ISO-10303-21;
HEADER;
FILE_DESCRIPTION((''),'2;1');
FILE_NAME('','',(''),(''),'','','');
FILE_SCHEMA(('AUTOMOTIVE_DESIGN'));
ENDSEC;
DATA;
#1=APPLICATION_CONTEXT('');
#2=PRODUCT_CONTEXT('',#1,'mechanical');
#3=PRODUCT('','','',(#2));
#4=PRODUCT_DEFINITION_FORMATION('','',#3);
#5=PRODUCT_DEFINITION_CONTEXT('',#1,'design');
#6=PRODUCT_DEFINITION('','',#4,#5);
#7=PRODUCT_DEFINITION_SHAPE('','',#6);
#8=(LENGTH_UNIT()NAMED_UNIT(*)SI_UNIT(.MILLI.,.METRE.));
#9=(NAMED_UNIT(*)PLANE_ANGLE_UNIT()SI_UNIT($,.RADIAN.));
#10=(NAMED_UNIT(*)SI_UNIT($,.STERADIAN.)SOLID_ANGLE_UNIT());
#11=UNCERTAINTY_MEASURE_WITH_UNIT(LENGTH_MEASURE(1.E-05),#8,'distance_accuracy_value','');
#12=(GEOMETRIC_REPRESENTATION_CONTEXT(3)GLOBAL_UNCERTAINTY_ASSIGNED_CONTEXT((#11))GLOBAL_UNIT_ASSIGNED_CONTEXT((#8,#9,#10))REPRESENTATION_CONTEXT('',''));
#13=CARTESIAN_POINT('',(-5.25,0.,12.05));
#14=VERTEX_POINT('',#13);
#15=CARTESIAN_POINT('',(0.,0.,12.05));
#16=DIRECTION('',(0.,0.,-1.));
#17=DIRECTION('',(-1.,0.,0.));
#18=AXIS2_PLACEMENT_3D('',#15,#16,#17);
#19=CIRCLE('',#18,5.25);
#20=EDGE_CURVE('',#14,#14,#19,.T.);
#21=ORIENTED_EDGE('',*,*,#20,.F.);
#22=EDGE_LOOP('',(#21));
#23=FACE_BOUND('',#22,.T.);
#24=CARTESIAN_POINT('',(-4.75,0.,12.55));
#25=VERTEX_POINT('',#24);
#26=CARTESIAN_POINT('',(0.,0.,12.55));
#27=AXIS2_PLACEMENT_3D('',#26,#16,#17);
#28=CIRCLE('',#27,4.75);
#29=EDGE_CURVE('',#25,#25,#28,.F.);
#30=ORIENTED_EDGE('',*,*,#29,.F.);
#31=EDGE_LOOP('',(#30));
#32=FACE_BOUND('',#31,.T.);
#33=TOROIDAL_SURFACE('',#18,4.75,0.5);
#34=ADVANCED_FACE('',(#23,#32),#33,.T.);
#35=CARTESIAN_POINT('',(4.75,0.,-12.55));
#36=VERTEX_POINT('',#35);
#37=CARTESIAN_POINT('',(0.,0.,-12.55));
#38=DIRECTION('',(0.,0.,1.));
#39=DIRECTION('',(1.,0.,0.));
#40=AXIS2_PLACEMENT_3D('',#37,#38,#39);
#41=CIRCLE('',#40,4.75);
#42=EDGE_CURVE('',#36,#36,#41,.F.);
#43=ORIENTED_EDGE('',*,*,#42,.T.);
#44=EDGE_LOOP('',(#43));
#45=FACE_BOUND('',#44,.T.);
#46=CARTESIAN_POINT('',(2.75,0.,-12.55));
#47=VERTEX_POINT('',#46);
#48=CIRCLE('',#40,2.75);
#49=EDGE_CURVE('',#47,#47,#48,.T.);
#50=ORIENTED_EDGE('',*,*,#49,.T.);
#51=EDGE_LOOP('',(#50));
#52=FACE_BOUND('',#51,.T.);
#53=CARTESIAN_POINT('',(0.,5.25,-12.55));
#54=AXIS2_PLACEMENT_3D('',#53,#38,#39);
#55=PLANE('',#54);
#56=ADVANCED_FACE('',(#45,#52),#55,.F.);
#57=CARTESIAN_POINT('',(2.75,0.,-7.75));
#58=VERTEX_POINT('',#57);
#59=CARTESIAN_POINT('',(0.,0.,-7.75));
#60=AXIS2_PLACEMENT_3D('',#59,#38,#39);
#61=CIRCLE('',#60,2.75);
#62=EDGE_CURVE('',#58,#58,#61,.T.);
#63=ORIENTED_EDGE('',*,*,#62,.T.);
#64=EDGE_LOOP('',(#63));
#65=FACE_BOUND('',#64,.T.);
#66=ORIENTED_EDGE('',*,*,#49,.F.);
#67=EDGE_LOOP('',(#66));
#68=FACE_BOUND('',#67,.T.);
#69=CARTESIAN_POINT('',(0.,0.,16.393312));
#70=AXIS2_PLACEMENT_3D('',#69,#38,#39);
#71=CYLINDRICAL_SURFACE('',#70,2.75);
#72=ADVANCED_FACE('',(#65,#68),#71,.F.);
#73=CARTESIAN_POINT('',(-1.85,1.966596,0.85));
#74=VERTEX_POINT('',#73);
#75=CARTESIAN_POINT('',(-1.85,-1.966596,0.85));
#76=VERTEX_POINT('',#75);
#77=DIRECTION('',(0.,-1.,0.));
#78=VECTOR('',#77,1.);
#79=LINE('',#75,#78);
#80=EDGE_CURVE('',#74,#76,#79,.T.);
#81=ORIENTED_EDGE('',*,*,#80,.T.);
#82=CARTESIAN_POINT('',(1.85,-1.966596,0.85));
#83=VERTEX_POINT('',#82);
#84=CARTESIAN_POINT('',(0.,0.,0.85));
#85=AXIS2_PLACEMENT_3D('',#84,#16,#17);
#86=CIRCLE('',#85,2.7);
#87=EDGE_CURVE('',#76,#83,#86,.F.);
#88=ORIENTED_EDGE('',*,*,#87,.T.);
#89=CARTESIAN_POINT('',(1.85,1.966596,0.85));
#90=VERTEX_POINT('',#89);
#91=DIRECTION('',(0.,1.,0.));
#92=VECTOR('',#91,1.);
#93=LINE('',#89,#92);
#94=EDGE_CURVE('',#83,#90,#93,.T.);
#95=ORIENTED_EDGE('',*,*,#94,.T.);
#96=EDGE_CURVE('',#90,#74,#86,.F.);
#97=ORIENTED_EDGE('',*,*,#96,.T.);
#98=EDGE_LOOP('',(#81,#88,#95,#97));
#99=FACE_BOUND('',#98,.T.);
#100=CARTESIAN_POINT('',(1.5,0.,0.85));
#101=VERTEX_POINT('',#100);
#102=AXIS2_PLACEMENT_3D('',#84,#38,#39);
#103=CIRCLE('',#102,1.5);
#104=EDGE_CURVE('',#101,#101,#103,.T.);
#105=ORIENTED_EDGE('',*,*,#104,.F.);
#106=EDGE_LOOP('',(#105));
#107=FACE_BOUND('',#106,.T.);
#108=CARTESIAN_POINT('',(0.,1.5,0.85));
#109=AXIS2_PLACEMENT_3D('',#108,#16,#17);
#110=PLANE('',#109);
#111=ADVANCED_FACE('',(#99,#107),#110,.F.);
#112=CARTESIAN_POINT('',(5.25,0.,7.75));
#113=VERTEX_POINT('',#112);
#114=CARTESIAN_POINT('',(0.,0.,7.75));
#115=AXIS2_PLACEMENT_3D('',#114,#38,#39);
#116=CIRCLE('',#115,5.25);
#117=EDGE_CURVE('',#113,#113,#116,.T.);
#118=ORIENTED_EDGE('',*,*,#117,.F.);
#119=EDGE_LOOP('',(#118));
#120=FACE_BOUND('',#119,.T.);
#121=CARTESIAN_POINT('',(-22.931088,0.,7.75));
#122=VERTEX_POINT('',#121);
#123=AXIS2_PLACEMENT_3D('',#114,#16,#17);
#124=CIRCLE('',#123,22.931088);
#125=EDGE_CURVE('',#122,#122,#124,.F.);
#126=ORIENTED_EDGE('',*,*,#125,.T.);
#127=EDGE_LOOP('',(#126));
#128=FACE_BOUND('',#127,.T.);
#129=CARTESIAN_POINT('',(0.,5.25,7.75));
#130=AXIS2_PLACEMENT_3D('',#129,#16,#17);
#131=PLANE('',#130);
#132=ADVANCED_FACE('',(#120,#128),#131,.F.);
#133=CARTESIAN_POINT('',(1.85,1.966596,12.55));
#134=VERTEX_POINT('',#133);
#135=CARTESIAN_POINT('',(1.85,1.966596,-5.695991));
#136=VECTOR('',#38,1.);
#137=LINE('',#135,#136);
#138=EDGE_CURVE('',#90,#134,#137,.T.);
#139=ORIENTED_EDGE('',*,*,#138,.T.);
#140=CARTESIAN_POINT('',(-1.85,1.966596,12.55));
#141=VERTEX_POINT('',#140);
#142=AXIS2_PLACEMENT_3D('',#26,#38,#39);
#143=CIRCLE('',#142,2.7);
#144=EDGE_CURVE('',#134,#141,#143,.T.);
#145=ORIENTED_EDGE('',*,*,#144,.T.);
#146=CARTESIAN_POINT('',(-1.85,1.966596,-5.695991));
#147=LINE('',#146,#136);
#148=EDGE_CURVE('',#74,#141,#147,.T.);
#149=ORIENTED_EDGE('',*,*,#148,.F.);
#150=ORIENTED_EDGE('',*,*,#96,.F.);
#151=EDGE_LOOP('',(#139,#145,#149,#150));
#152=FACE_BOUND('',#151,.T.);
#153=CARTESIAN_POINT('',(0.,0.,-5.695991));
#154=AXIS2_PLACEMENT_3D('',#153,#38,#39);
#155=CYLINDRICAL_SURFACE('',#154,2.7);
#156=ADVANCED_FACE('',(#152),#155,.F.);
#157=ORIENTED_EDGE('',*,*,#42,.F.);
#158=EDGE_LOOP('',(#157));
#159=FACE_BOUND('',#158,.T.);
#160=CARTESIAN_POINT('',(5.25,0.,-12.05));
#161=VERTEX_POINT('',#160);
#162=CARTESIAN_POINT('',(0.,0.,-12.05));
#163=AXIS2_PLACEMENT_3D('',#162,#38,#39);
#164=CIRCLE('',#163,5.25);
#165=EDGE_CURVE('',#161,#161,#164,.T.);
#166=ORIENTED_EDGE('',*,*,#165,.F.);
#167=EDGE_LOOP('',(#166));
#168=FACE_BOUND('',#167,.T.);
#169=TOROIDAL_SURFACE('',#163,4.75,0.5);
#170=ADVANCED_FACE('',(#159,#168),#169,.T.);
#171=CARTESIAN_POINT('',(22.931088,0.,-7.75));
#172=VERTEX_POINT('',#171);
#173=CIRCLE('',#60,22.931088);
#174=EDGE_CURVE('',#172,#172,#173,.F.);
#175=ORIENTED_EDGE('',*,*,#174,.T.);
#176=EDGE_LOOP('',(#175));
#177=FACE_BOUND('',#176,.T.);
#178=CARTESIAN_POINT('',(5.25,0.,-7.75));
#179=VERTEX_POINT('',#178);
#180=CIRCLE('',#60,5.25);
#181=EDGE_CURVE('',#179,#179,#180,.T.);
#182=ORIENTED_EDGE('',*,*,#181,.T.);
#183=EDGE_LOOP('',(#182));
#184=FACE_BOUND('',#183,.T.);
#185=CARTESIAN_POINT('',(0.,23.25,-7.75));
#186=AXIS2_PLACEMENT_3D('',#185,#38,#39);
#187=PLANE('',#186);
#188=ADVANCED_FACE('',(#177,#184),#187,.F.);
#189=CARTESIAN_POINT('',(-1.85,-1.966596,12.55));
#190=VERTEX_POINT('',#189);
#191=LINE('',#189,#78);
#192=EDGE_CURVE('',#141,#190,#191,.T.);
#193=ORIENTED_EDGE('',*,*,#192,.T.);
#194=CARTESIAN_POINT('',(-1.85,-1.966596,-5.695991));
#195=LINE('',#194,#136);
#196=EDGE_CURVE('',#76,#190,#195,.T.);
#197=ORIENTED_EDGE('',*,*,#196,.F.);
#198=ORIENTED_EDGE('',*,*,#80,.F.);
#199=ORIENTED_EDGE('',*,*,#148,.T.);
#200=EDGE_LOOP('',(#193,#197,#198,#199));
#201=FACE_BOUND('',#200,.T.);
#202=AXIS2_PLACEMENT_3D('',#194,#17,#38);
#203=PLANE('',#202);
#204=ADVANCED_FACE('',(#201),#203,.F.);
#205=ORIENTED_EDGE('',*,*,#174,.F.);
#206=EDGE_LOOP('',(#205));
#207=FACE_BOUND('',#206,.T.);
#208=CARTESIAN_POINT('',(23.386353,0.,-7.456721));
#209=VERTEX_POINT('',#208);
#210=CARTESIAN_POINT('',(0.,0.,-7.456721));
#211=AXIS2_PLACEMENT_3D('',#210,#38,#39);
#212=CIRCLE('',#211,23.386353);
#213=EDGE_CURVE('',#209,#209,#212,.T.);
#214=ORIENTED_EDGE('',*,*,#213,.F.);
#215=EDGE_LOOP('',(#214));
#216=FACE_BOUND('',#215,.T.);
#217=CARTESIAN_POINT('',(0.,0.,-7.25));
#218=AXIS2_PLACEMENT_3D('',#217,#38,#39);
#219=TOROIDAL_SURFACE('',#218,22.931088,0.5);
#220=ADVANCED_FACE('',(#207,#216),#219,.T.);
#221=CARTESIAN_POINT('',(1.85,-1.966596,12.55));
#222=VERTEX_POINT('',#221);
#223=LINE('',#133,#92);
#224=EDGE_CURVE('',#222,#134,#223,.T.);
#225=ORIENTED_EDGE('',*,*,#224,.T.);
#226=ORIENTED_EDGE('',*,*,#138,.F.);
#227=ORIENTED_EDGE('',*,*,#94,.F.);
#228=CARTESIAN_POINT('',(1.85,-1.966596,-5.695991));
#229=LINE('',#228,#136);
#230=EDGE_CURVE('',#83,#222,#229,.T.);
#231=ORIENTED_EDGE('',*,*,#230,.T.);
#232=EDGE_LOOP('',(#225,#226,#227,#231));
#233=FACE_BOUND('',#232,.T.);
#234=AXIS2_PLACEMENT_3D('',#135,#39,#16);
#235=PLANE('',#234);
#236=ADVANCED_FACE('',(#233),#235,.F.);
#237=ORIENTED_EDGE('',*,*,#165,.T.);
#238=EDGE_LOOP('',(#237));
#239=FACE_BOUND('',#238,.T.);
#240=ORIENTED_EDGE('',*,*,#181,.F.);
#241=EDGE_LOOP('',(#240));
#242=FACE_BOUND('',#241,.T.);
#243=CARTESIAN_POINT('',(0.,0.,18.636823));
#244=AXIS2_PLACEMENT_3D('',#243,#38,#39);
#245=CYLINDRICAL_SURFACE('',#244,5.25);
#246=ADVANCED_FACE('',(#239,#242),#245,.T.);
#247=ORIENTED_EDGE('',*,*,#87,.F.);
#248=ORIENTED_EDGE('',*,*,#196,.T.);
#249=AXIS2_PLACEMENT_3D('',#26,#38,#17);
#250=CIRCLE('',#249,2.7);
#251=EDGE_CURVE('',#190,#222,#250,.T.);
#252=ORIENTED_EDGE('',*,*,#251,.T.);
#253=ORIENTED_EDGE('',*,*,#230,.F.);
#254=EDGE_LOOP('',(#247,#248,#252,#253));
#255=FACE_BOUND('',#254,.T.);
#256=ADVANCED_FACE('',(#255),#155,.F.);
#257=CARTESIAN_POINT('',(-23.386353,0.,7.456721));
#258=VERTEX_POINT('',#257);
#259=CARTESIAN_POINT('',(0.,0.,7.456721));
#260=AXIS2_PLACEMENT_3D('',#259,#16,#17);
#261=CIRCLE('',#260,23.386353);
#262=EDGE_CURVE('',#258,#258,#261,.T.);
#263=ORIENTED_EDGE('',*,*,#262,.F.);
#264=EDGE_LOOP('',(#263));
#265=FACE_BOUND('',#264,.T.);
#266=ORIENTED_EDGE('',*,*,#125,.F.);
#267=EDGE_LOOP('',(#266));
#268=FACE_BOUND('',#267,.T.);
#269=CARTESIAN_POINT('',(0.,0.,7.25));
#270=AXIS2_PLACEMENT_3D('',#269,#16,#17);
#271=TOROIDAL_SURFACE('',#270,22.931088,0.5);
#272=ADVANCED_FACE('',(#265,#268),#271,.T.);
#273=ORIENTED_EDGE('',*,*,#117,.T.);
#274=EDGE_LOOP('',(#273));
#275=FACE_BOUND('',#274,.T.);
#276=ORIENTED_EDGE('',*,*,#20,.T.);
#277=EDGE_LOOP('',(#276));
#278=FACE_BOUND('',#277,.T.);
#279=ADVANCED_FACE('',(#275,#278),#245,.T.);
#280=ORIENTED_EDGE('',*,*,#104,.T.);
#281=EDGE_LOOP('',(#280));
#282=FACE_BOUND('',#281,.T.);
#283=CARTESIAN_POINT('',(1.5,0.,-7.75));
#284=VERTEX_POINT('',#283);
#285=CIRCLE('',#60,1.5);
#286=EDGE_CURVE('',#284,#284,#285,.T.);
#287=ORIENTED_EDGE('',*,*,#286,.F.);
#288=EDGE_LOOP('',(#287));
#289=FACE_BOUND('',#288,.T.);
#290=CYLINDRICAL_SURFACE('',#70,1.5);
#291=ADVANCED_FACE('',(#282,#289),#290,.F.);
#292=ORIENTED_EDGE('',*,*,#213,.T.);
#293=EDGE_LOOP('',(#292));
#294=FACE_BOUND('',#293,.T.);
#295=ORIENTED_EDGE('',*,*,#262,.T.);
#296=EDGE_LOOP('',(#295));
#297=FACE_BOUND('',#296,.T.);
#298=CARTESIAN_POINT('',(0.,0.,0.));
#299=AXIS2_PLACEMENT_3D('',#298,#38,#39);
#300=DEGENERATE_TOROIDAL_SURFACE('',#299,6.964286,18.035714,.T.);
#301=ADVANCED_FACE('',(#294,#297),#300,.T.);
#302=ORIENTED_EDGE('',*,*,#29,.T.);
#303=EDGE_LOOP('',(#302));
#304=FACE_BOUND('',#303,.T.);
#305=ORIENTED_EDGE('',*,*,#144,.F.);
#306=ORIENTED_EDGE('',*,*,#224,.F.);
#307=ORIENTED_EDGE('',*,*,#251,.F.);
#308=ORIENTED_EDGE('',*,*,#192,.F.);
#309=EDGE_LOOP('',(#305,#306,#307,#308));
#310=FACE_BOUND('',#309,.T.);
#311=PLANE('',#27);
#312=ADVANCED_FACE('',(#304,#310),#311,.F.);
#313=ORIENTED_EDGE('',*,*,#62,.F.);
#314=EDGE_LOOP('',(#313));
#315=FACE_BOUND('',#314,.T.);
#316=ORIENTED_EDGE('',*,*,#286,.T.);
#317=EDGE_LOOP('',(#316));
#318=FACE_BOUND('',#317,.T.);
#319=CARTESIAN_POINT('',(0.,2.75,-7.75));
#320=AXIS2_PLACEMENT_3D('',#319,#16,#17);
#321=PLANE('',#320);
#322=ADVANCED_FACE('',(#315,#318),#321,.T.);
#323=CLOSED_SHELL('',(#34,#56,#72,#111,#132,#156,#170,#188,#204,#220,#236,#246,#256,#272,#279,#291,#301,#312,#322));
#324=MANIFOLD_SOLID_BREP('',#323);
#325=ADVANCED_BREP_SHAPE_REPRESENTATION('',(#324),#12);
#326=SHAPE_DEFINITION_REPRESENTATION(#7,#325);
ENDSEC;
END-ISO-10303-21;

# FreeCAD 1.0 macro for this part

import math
import FreeCAD as App
import Part
import Sketcher

V = App.Vector


def edges_at(feature, points):
    """Names of the edges that pass closest to the given points."""
    edges = feature.Shape.Edges
    near = lambda p: min(range(len(edges)), key=lambda i: edges[i].distToShape(Part.Vertex(*p))[0])
    return sorted({f"Edge{near(p) + 1}" for p in points})

doc = App.newDocument("Part")
params = doc.addObject("Spreadsheet::Sheet", "Params")
for row, (alias, value) in enumerate([
    ("sketch1_width", "18 mm"),
    ("sketch1_height", "25.1 mm"),
    ("sketch1_height2", "4.8 mm"),
    ("sketch1_width2", "5.25 mm"),
    ("revolution_angle", "360 deg"),
    ("sketch2_width", "1.5 mm"),
    ("sketch2_height", "4.8 mm"),
    ("sketch2_height2", "8.6 mm"),
    ("sketch2_width2", "2.75 mm"),
    ("groove_angle", "360 deg"),
    ("sketch3_radius", "2.7 mm"),
    ("pocket1_length", "11.7 mm"),
    ("fillet_radius", "0.5 mm"),
], start=1):
    params.set(f"A{row}", alias)
    params.set(f"B{row}", "=" + value)
    params.setAlias(f"B{row}", alias)

body = doc.addObject("PartDesign::Body", "Body")

# Sketch on YZ plane
sketch1 = doc.addObject("Sketcher::SketchObject", "Sketch")
body.addObject(sketch1)
sketch1.AttachmentSupport = (doc.YZ_Plane, [""])
sketch1.MapMode = "FlatFace"
sketch1.addGeometry(Part.LineSegment(V(5.2, 12.6, 0), V(0, 12.6, 0)), False)
sketch1.addGeometry(Part.LineSegment(V(0, 12.6, 0), V(0, -12.6, 0)), False)
sketch1.addGeometry(Part.LineSegment(V(0, -12.6, 0), V(5.2, -12.6, 0)), False)
sketch1.addGeometry(Part.LineSegment(V(5.2, -12.6, 0), V(5.2, -7.8, 0)), False)
sketch1.addGeometry(Part.LineSegment(V(5.2, -7.8, 0), V(23.2, -7.8, 0)), False)
sketch1.addGeometry(Part.ArcOfCircle(Part.Circle(V(7, 0, 0), V(0, 0, 1), 18), math.radians(-25), math.radians(25)), False)
sketch1.addGeometry(Part.LineSegment(V(23.2, 7.8, 0), V(5.2, 7.8, 0)), False)
sketch1.addGeometry(Part.LineSegment(V(5.2, 7.8, 0), V(5.2, 12.6, 0)), False)
sketch1.addConstraint(Sketcher.Constraint("Coincident", 0, 2, 1, 1))
sketch1.addConstraint(Sketcher.Constraint("Coincident", 1, 2, 2, 1))
sketch1.addConstraint(Sketcher.Constraint("Coincident", 2, 2, 3, 1))
sketch1.addConstraint(Sketcher.Constraint("Coincident", 3, 2, 4, 1))
sketch1.addConstraint(Sketcher.Constraint("Coincident", 4, 2, 5, 1))
sketch1.addConstraint(Sketcher.Constraint("Coincident", 5, 2, 6, 1))
sketch1.addConstraint(Sketcher.Constraint("Coincident", 6, 2, 7, 1))
sketch1.addConstraint(Sketcher.Constraint("Coincident", 7, 2, 0, 1))
sketch1.addConstraint(Sketcher.Constraint("Horizontal", 0))
sketch1.addConstraint(Sketcher.Constraint("Vertical", 1))
sketch1.addConstraint(Sketcher.Constraint("Horizontal", 2))
sketch1.addConstraint(Sketcher.Constraint("Vertical", 3))
sketch1.addConstraint(Sketcher.Constraint("Horizontal", 4))
sketch1.addConstraint(Sketcher.Constraint("Horizontal", 6))
sketch1.addConstraint(Sketcher.Constraint("Vertical", 7))
sketch1.addConstraint(Sketcher.Constraint("Symmetric", 0, 2, 1, 2, -1, 1))
sketch1.addConstraint(Sketcher.Constraint("Symmetric", 4, 2, 5, 2, -1))
sketch1.addConstraint(Sketcher.Constraint("Vertical", 3, 2, 6, 2))
sketch1.addConstraint(Sketcher.Constraint("DistanceX", 4, 1, 4, 2, 18.0))
sketch1.addConstraint(Sketcher.Constraint("DistanceY", 1, 2, 1, 1, 25.1))
sketch1.addConstraint(Sketcher.Constraint("DistanceY", 3, 1, 3, 2, 4.8))
sketch1.addConstraint(Sketcher.Constraint("DistanceX", 0, 2, 0, 1, 5.25))
sketch1.addConstraint(Sketcher.Constraint("Radius", 5, 18.035714))
sketch1.setExpression("Constraints[18]", "Params.sketch1_width")
sketch1.setExpression("Constraints[19]", "Params.sketch1_height")
sketch1.setExpression("Constraints[20]", "Params.sketch1_height2")
sketch1.setExpression("Constraints[21]", "Params.sketch1_width2")
revolution = doc.addObject("PartDesign::Revolution", "Revolution")
body.addObject(revolution)
revolution.Profile = sketch1
revolution.ReferenceAxis = (sketch1, ["V_Axis"])
revolution.setExpression("Angle", "Params.revolution_angle")

# Sketch on YZ plane
sketch2 = doc.addObject("Sketcher::SketchObject", "Sketch001")
body.addObject(sketch2)
sketch2.AttachmentSupport = (doc.YZ_Plane, [""])
sketch2.MapMode = "FlatFace"
sketch2.addGeometry(Part.LineSegment(V(0, -12.6, 0), V(2.8, -12.6, 0)), False)
sketch2.addGeometry(Part.LineSegment(V(2.8, -12.6, 0), V(2.8, -7.8, 0)), False)
sketch2.addGeometry(Part.LineSegment(V(2.8, -7.8, 0), V(1.5, -7.8, 0)), False)
sketch2.addGeometry(Part.LineSegment(V(1.5, -7.8, 0), V(1.5, 0.8, 0)), False)
sketch2.addGeometry(Part.LineSegment(V(1.5, 0.8, 0), V(0, 0.8, 0)), False)
sketch2.addGeometry(Part.LineSegment(V(0, 0.8, 0), V(0, -12.6, 0)), False)
sketch2.addConstraint(Sketcher.Constraint("Coincident", 0, 2, 1, 1))
sketch2.addConstraint(Sketcher.Constraint("Coincident", 1, 2, 2, 1))
sketch2.addConstraint(Sketcher.Constraint("Coincident", 2, 2, 3, 1))
sketch2.addConstraint(Sketcher.Constraint("Coincident", 3, 2, 4, 1))
sketch2.addConstraint(Sketcher.Constraint("Coincident", 4, 2, 5, 1))
sketch2.addConstraint(Sketcher.Constraint("Coincident", 5, 2, 0, 1))
sketch2.addConstraint(Sketcher.Constraint("Horizontal", 0))
sketch2.addConstraint(Sketcher.Constraint("Vertical", 1))
sketch2.addConstraint(Sketcher.Constraint("Horizontal", 2))
sketch2.addConstraint(Sketcher.Constraint("Vertical", 3))
sketch2.addConstraint(Sketcher.Constraint("Horizontal", 4))
sketch2.addConstraint(Sketcher.Constraint("Vertical", 5))
sketch2.addConstraint(Sketcher.Constraint("PointOnObject", 4, 2, -2))
sketch2.addConstraint(Sketcher.Constraint("DistanceX", 4, 2, 4, 1, 1.5))
sketch2.addConstraint(Sketcher.Constraint("DistanceY", 1, 1, 1, 2, 4.8))
sketch2.addConstraint(Sketcher.Constraint("DistanceY", 3, 1, 3, 2, 8.6))
sketch2.addConstraint(Sketcher.Constraint("DistanceX", 0, 1, 0, 2, 2.75))
sketch2.addConstraint(Sketcher.Constraint("DistanceY", 0, 2, -1, 1, 12.55))
sketch2.setExpression("Constraints[13]", "Params.sketch2_width")
sketch2.setExpression("Constraints[14]", "Params.sketch2_height")
sketch2.setExpression("Constraints[15]", "Params.sketch2_height2")
sketch2.setExpression("Constraints[16]", "Params.sketch2_width2")
groove = doc.addObject("PartDesign::Groove", "Groove")
body.addObject(groove)
groove.Profile = sketch2
groove.ReferenceAxis = (sketch2, ["V_Axis"])
groove.setExpression("Angle", "Params.groove_angle")

# Sketch on XY plane
sketch3 = doc.addObject("Sketcher::SketchObject", "Sketch002")
body.addObject(sketch3)
sketch3.AttachmentSupport = (doc.XY_Plane, [""])
sketch3.MapMode = "FlatFace"
sketch3.AttachmentOffset = App.Placement(V(0, 0, 12.55), App.Rotation())
sketch3.addGeometry(Part.LineSegment(V(-1.9, 2, 0), V(-1.9, -2, 0)), False)
sketch3.addGeometry(Part.ArcOfCircle(Part.Circle(V(0, 0, 0), V(0, 0, 1), 2.7), math.radians(-133), math.radians(-47)), False)
sketch3.addGeometry(Part.LineSegment(V(1.9, -2, 0), V(1.9, 2, 0)), False)
sketch3.addGeometry(Part.ArcOfCircle(Part.Circle(V(0, 0, 0), V(0, 0, 1), 2.7), math.radians(47), math.radians(133)), False)
sketch3.addConstraint(Sketcher.Constraint("Coincident", 0, 2, 1, 1))
sketch3.addConstraint(Sketcher.Constraint("Coincident", 1, 2, 2, 1))
sketch3.addConstraint(Sketcher.Constraint("Coincident", 2, 2, 3, 1))
sketch3.addConstraint(Sketcher.Constraint("Coincident", 3, 2, 0, 1))
sketch3.addConstraint(Sketcher.Constraint("Vertical", 0))
sketch3.addConstraint(Sketcher.Constraint("Vertical", 2))
sketch3.addConstraint(Sketcher.Constraint("Coincident", 1, 3, -1, 1))
sketch3.addConstraint(Sketcher.Constraint("Coincident", 3, 3, -1, 1))
sketch3.addConstraint(Sketcher.Constraint("Equal", 1, 3))
sketch3.addConstraint(Sketcher.Constraint("Horizontal", 0, 2, 1, 2))
sketch3.addConstraint(Sketcher.Constraint("Radius", 1, 2.7))
sketch3.addConstraint(Sketcher.Constraint("DistanceX", 0, 2, 1, 2, 3.7))
sketch3.setExpression("Constraints[10]", "Params.sketch3_radius")
pocket1 = doc.addObject("PartDesign::Pocket", "Pocket")
body.addObject(pocket1)
pocket1.Profile = sketch3
pocket1.setExpression("Length", "Params.pocket1_length")
doc.recompute()

fillet = doc.addObject("PartDesign::Fillet", "Fillet")
body.addObject(fillet)
fillet.Base = (pocket1, edges_at(pocket1, [
    (-5.25, 0, 12.55),
    (-23.25, 0, 7.75),
    (-23.25, 0, -7.75),
    (-5.25, 0, -12.55),
]))
fillet.setExpression("Radius", "Params.fillet_radius")

doc.recompute()
